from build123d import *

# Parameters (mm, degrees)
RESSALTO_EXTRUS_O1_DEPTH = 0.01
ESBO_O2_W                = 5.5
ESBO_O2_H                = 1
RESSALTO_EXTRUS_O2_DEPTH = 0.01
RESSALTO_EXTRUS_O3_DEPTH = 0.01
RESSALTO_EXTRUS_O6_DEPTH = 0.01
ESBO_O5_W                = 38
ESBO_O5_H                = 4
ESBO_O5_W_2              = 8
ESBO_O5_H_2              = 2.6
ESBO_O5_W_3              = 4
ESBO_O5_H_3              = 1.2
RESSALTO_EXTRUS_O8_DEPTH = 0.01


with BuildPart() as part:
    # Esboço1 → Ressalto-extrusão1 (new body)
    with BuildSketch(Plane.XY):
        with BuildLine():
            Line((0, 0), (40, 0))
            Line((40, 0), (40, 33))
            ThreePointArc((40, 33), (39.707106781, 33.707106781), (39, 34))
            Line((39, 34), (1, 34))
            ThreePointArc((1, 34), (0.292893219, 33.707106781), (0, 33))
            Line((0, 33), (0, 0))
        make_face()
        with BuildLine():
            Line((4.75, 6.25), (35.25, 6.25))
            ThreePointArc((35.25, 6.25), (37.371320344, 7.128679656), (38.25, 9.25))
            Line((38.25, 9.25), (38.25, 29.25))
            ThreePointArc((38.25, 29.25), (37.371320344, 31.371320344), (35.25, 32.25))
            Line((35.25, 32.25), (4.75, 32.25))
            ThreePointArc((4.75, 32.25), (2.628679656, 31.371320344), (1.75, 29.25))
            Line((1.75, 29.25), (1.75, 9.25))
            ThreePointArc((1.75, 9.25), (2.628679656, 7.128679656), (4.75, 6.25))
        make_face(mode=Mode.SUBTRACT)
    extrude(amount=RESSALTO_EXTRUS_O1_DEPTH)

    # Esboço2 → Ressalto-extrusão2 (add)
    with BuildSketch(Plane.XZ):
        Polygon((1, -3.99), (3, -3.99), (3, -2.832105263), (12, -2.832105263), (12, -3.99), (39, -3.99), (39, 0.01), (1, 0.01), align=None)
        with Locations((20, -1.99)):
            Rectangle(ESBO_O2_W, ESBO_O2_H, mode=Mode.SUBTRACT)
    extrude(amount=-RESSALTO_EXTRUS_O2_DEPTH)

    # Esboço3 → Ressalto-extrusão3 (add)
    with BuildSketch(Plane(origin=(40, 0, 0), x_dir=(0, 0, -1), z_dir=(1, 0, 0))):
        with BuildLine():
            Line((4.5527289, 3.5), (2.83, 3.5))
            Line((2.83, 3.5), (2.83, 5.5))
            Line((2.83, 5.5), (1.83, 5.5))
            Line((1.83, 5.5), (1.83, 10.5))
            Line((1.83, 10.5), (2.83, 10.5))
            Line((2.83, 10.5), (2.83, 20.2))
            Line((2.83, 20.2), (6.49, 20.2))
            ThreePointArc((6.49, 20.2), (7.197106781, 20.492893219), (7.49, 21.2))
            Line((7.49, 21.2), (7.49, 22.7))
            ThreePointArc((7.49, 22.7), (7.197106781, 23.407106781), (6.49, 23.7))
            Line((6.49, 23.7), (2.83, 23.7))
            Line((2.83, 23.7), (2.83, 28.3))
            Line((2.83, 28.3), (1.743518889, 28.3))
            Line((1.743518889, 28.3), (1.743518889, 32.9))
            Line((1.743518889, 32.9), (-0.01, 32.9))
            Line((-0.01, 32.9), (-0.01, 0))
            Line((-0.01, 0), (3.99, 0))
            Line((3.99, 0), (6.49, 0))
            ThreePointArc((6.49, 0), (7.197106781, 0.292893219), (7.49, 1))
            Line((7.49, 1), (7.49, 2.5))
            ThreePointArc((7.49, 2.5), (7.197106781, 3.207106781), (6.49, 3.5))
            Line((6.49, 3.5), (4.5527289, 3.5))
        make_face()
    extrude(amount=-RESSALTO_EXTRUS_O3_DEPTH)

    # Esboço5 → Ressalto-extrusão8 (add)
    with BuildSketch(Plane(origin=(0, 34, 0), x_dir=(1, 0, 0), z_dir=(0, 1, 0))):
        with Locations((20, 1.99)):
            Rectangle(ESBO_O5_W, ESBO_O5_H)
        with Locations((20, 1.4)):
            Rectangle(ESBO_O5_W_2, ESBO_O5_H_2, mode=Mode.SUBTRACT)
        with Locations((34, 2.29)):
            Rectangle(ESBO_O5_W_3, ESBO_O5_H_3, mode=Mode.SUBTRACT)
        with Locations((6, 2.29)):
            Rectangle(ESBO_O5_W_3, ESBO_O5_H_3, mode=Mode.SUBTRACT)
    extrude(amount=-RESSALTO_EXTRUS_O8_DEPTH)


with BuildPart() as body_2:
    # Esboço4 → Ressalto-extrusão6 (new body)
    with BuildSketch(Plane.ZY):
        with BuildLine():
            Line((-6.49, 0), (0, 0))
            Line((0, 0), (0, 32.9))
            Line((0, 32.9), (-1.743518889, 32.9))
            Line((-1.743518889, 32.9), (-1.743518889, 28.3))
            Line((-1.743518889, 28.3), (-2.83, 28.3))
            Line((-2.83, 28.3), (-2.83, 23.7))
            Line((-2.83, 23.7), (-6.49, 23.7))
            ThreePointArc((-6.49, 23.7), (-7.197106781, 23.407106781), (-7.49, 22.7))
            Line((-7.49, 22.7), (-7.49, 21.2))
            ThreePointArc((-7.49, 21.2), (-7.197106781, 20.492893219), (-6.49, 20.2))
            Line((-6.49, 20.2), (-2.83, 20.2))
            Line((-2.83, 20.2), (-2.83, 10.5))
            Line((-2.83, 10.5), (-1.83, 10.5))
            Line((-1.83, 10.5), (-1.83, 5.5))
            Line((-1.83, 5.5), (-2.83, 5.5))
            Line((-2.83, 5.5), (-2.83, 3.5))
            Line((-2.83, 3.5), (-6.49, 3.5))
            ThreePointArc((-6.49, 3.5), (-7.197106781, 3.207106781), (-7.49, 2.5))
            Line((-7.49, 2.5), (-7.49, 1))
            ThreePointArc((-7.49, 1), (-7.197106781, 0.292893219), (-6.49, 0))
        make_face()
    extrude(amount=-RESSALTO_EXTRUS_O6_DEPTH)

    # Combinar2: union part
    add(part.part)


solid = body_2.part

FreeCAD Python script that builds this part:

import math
import FreeCAD as App
import Part
import Sketcher

V = App.Vector
Q = App.Units.Quantity


def add_polygon(sketch, points):
    """Adds a closed chain of lines whose ends are joined by coincident constraints."""
    first, n = sketch.GeometryCount, len(points)
    for a, b in zip(points, points[1:] + points[:1]):
        sketch.addGeometry(Part.LineSegment(App.Vector(*a, 0), App.Vector(*b, 0)), False)
    for i in range(n):
        sketch.addConstraint(Sketcher.Constraint("Coincident", first + i, 2, first + (i + 1) % n, 1))

doc = App.newDocument("Part")
body = doc.addObject("PartDesign::Body", "Body")

sketch1 = body.newObject("Sketcher::SketchObject", "Sketch")
sketch1.AttachmentSupport = (doc.getObject("XY_Plane"), [""])
sketch1.MapMode = "FlatFace"
sketch1.addGeometry([
    Part.LineSegment(V(0, 0, 0), V(40, 0, 0)),
    Part.LineSegment(V(40, 0, 0), V(40, 33, 0)),
    Part.ArcOfCircle(Part.Circle(V(39, 33, 0), V(0, 0, 1), 1), math.radians(0), math.radians(90)),
    Part.LineSegment(V(39, 34, 0), V(1, 34, 0)),
    Part.ArcOfCircle(Part.Circle(V(1, 33, 0), V(0, 0, 1), 1), math.radians(90), math.radians(180)),
    Part.LineSegment(V(0, 33, 0), V(0, 0, 0)),
    Part.LineSegment(V(35.2, 6.2, 0), V(4.8, 6.2, 0)),
    Part.ArcOfCircle(Part.Circle(V(4.7, 9.2, 0), V(0, 0, 1), 3), math.radians(180), math.radians(270)),
    Part.LineSegment(V(1.8, 9.2, 0), V(1.8, 29.2, 0)),
    Part.ArcOfCircle(Part.Circle(V(4.7, 29.3, 0), V(0, 0, 1), 3), math.radians(90), math.radians(180)),
    Part.LineSegment(V(4.8, 32.2, 0), V(35.2, 32.2, 0)),
    Part.ArcOfCircle(Part.Circle(V(35.3, 29.3, 0), V(0, 0, 1), 3), math.radians(0), math.radians(90)),
    Part.LineSegment(V(38.2, 29.2, 0), V(38.2, 9.2, 0)),
    Part.ArcOfCircle(Part.Circle(V(35.3, 9.2, 0), V(0, 0, 1), 3), math.radians(-90), math.radians(0)),
], False)
sketch1.addConstraint([
    Sketcher.Constraint("Coincident", 0, 2, 1, 1),
    Sketcher.Constraint("Tangent", 1, 2, 2, 1),
    Sketcher.Constraint("Tangent", 2, 2, 3, 1),
    Sketcher.Constraint("Tangent", 3, 2, 4, 1),
    Sketcher.Constraint("Tangent", 4, 2, 5, 1),
    Sketcher.Constraint("Coincident", 5, 2, 0, 1),
    Sketcher.Constraint("Tangent", 6, 2, 7, 2),
    Sketcher.Constraint("Tangent", 7, 1, 8, 1),
    Sketcher.Constraint("Tangent", 8, 2, 9, 2),
    Sketcher.Constraint("Tangent", 9, 1, 10, 1),
    Sketcher.Constraint("Tangent", 10, 2, 11, 2),
    Sketcher.Constraint("Tangent", 11, 1, 12, 1),
    Sketcher.Constraint("Tangent", 12, 2, 13, 2),
    Sketcher.Constraint("Tangent", 13, 1, 6, 1),
    Sketcher.Constraint("Horizontal", 0),
    Sketcher.Constraint("Vertical", 1),
    Sketcher.Constraint("Horizontal", 3),
    Sketcher.Constraint("Vertical", 5),
    Sketcher.Constraint("Horizontal", 6),
    Sketcher.Constraint("Vertical", 8),
    Sketcher.Constraint("Horizontal", 10),
    Sketcher.Constraint("Vertical", 12),
    Sketcher.Constraint("Coincident", 5, 2, -1, 1),
    Sketcher.Constraint("Equal", 2, 4),
    Sketcher.Constraint("Equal", 7, 9),
    Sketcher.Constraint("Equal", 9, 11),
    Sketcher.Constraint("Equal", 11, 13),
    Sketcher.Constraint("Radius", 2, Q("1 mm")),
    Sketcher.Constraint("Radius", 7, Q("3 mm")),
    Sketcher.Constraint("DistanceX", 0, 1, 0, 2, Q("40 mm")),
    Sketcher.Constraint("DistanceY", 1, 1, 1, 2, Q("33 mm")),
    Sketcher.Constraint("DistanceY", 8, 1, 8, 2, Q("20 mm")),
    Sketcher.Constraint("DistanceX", 6, 2, 6, 1, Q("30.5 mm")),
    Sketcher.Constraint("DistanceX", -1, 1, 7, 3, Q("4.75 mm")),
    Sketcher.Constraint("DistanceY", -1, 1, 7, 3, Q("9.25 mm")),
])
pad1 = body.newObject("PartDesign::Pad", "Pad")
pad1.Profile = sketch1
pad1.Length = 0.01

sketch2 = body.newObject("Sketcher::SketchObject", "Sketch001")
sketch2.AttachmentSupport = (doc.getObject("XZ_Plane"), [""])
sketch2.MapMode = "FlatFace"
add_polygon(sketch2, [(1, -4), (3, -4), (3, -2.8), (12, -2.8), (12, -4), (39, -4), (39, 0), (1, 0)])
add_polygon(sketch2, [(22.8, -2.5), (17.2, -2.5), (17.2, -1.5), (22.8, -1.5)])
sketch2.addConstraint([
    Sketcher.Constraint("Horizontal", 0),
    Sketcher.Constraint("Vertical", 1),
    Sketcher.Constraint("Horizontal", 2),
    Sketcher.Constraint("Vertical", 3),
    Sketcher.Constraint("Horizontal", 4),
    Sketcher.Constraint("Vertical", 5),
    Sketcher.Constraint("Horizontal", 6),
    Sketcher.Constraint("Vertical", 7),
    Sketcher.Constraint("Horizontal", 8),
    Sketcher.Constraint("Vertical", 9),
    Sketcher.Constraint("Horizontal", 10),
    Sketcher.Constraint("Vertical", 11),
    Sketcher.Constraint("Horizontal", 0, 2, 3, 2),
    Sketcher.Constraint("DistanceX", 0, 1, 0, 2, Q("2 mm")),
    Sketcher.Constraint("DistanceX", 2, 1, 2, 2, Q("9 mm")),
    Sketcher.Constraint("DistanceX", 4, 1, 4, 2, Q("27 mm")),
    Sketcher.Constraint("DistanceY", 5, 1, 5, 2, Q("4 mm")),
    Sketcher.Constraint("DistanceY", 9, 1, 9, 2, Q("1 mm")),
    Sketcher.Constraint("DistanceX", 8, 2, 8, 1, Q("5.5 mm")),
    Sketcher.Constraint("DistanceX", -1, 1, 0, 2, Q("3 mm")),
    Sketcher.Constraint("DistanceY", 3, 2, 8, 2, Q("1.5 mm")),
    Sketcher.Constraint("DistanceY", 0, 2, -1, 1, Q("3.99 mm")),
    Sketcher.Constraint("DistanceX", -1, 1, 8, 2, Q("17.25 mm")),
    Sketcher.Constraint("DistanceY", 1, 1, 1, 2, Q("1.157895 mm")),
])
pad2 = body.newObject("PartDesign::Pad", "Pad001")
pad2.Profile = sketch2
pad2.Length = 0.01
pad2.Reversed = True

sketch3 = body.newObject("Sketcher::SketchObject", "Sketch002")
sketch3.AttachmentSupport = (doc.getObject("YZ_Plane"), [""])
sketch3.MapMode = "FlatFace"
sketch3.AttachmentOffset = App.Placement(V(0, 0, 40), App.Rotation())
sketch3.addGeometry([
    Part.LineSegment(V(3.5, -2.8, 0), V(5.5, -2.8, 0)),
    Part.LineSegment(V(5.5, -2.8, 0), V(5.5, -1.8, 0)),
    Part.LineSegment(V(5.5, -1.8, 0), V(10.5, -1.8, 0)),
    Part.LineSegment(V(10.5, -1.8, 0), V(10.5, -2.8, 0)),
    Part.LineSegment(V(10.5, -2.8, 0), V(20.2, -2.8, 0)),
    Part.LineSegment(V(20.2, -2.8, 0), V(20.2, -6.5, 0)),
    Part.ArcOfCircle(Part.Circle(V(21.2, -6.5, 0), V(0, 0, 1), 1), math.radians(-180), math.radians(-90)),
    Part.LineSegment(V(21.2, -7.5, 0), V(22.7, -7.5, 0)),
    Part.ArcOfCircle(Part.Circle(V(22.7, -6.5, 0), V(0, 0, 1), 1), math.radians(-90), math.radians(0)),
    Part.LineSegment(V(23.7, -6.5, 0), V(23.7, -2.8, 0)),
    Part.LineSegment(V(23.7, -2.8, 0), V(28.3, -2.8, 0)),
    Part.LineSegment(V(28.3, -2.8, 0), V(28.3, -1.7, 0)),
    Part.LineSegment(V(28.3, -1.7, 0), V(32.9, -1.7, 0)),
    Part.LineSegment(V(32.9, -1.7, 0), V(32.9, 0, 0)),
    Part.LineSegment(V(32.9, 0, 0), V(0, 0, 0)),
    Part.LineSegment(V(0, 0, 0), V(0, -6.5, 0)),
    Part.ArcOfCircle(Part.Circle(V(1, -6.5, 0), V(0, 0, 1), 1), math.radians(-180), math.radians(-90)),
    Part.LineSegment(V(1, -7.5, 0), V(2.5, -7.5, 0)),
    Part.ArcOfCircle(Part.Circle(V(2.5, -6.5, 0), V(0, 0, 1), 1), math.radians(-90), math.radians(0)),
    Part.LineSegment(V(3.5, -6.5, 0), V(3.5, -2.8, 0)),
], False)
sketch3.addConstraint([
    Sketcher.Constraint("Coincident", 0, 2, 1, 1),
    Sketcher.Constraint("Coincident", 1, 2, 2, 1),
    Sketcher.Constraint("Coincident", 2, 2, 3, 1),
    Sketcher.Constraint("Coincident", 3, 2, 4, 1),
    Sketcher.Constraint("Coincident", 4, 2, 5, 1),
    Sketcher.Constraint("Tangent", 5, 2, 6, 1),
    Sketcher.Constraint("Tangent", 6, 2, 7, 1),
    Sketcher.Constraint("Tangent", 7, 2, 8, 1),
    Sketcher.Constraint("Tangent", 8, 2, 9, 1),
    Sketcher.Constraint("Coincident", 9, 2, 10, 1),
    Sketcher.Constraint("Coincident", 10, 2, 11, 1),
    Sketcher.Constraint("Coincident", 11, 2, 12, 1),
    Sketcher.Constraint("Coincident", 12, 2, 13, 1),
    Sketcher.Constraint("Coincident", 13, 2, 14, 1),
    Sketcher.Constraint("Coincident", 14, 2, 15, 1),
    Sketcher.Constraint("Tangent", 15, 2, 16, 1),
    Sketcher.Constraint("Tangent", 16, 2, 17, 1),
    Sketcher.Constraint("Tangent", 17, 2, 18, 1),
    Sketcher.Constraint("Tangent", 18, 2, 19, 1),
    Sketcher.Constraint("Coincident", 19, 2, 0, 1),
    Sketcher.Constraint("Horizontal", 0),
    Sketcher.Constraint("Vertical", 1),
    Sketcher.Constraint("Horizontal", 2),
    Sketcher.Constraint("Vertical", 3),
    Sketcher.Constraint("Horizontal", 4),
    Sketcher.Constraint("Vertical", 5),
    Sketcher.Constraint("Horizontal", 7),
    Sketcher.Constraint("Vertical", 9),
    Sketcher.Constraint("Horizontal", 10),
    Sketcher.Constraint("Vertical", 11),
    Sketcher.Constraint("Horizontal", 12),
    Sketcher.Constraint("Vertical", 13),
    Sketcher.Constraint("Horizontal", 14),
    Sketcher.Constraint("Vertical", 15),
    Sketcher.Constraint("Horizontal", 17),
    Sketcher.Constraint("Vertical", 19),
    Sketcher.Constraint("Equal", 6, 8),
    Sketcher.Constraint("Equal", 8, 16),
    Sketcher.Constraint("Equal", 16, 18),
    Sketcher.Constraint("PointOnObject", 14, 2, -2),
    Sketcher.Constraint("Horizontal", 8, 3, 16, 3),
    Sketcher.Constraint("Horizontal", 0, 2, 3, 2),
    Sketcher.Constraint("Horizontal", 4, 2, 9, 2),
    Sketcher.Constraint("Equal", 10, 12),
    Sketcher.Constraint("Equal", 7, 17),
    Sketcher.Constraint("Radius", 6, Q("1 mm")),
    Sketcher.Constraint("DistanceX", 0, 1, 0, 2, Q("2 mm")),
    Sketcher.Constraint("DistanceX", 2, 1, 2, 2, Q("5 mm")),
    Sketcher.Constraint("DistanceY", 1, 1, 1, 2, Q("1 mm")),
    Sketcher.Constraint("DistanceX", 4, 1, 4, 2, Q("9.7 mm")),
    Sketcher.Constraint("DistanceX", 7, 1, 7, 2, Q("1.5 mm")),
    Sketcher.Constraint("DistanceX", 10, 1, 10, 2, Q("4.6 mm")),
    Sketcher.Constraint("DistanceY", 15, 2, 15, 1, Q("6.5 mm")),
    Sketcher.Constraint("DistanceY", 5, 2, 5, 1, Q("3.66 mm")),
    Sketcher.Constraint("DistanceY", 6, 3, -1, 1, Q("6.49 mm")),
    Sketcher.Constraint("DistanceY", 11, 1, 11, 2, Q("1.086481 mm")),
])
pad3 = body.newObject("PartDesign::Pad", "Pad002")
pad3.Profile = sketch3
pad3.Length = 0.01
pad3.Reversed = True

sketch4 = body.newObject("Sketcher::SketchObject", "Sketch003")
sketch4.AttachmentSupport = (doc.getObject("XZ_Plane"), [""])
sketch4.MapMode = "FlatFace"
sketch4.AttachmentOffset = App.Placement(V(0, 0, -34), App.Rotation())
add_polygon(sketch4, [(1, -4), (1, 0), (39, 0), (39, -4)])
add_polygon(sketch4, [(24, -0.1), (16, -0.1), (16, -2.7), (24, -2.7)])
add_polygon(sketch4, [(8, -1.7), (4, -1.7), (4, -2.9), (8, -2.9)])
add_polygon(sketch4, [(36, -1.7), (32, -1.7), (32, -2.9), (36, -2.9)])
sketch4.addConstraint([
    Sketcher.Constraint("Vertical", 0),
    Sketcher.Constraint("Horizontal", 1),
    Sketcher.Constraint("Vertical", 2),
    Sketcher.Constraint("Horizontal", 3),
    Sketcher.Constraint("Horizontal", 4),
    Sketcher.Constraint("Vertical", 5),
    Sketcher.Constraint("Horizontal", 6),
    Sketcher.Constraint("Vertical", 7),
    Sketcher.Constraint("Horizontal", 8),
    Sketcher.Constraint("Vertical", 9),
    Sketcher.Constraint("Horizontal", 10),
    Sketcher.Constraint("Vertical", 11),
    Sketcher.Constraint("Horizontal", 12),
    Sketcher.Constraint("Vertical", 13),
    Sketcher.Constraint("Horizontal", 14),
    Sketcher.Constraint("Vertical", 15),
    Sketcher.Constraint("Horizontal", 11, 2, 12, 2),
    Sketcher.Constraint("Horizontal", 10, 2, 13, 2),
    Sketcher.Constraint("Equal", 10, 12),
    Sketcher.Constraint("Equal", 14, 0),
    Sketcher.Constraint("DistanceX", 1, 1, 1, 2, Q("38 mm")),
    Sketcher.Constraint("DistanceX", 4, 2, 4, 1, Q("8 mm")),
    Sketcher.Constraint("DistanceX", 8, 2, 8, 1, Q("4 mm")),
    Sketcher.Constraint("DistanceY", 5, 2, 5, 1, Q("2.6 mm")),
    Sketcher.Constraint("DistanceY", 9, 2, 9, 1, Q("1.2 mm")),
    Sketcher.Constraint("DistanceX", -1, 1, 0, 2, Q("1 mm")),
    Sketcher.Constraint("DistanceX", -1, 1, 4, 2, Q("16 mm")),
    Sketcher.Constraint("DistanceX", -1, 1, 8, 2, Q("4 mm")),
    Sketcher.Constraint("DistanceX", -1, 1, 12, 2, Q("32 mm")),
    Sketcher.Constraint("DistanceY", 4, 2, -1, 1, Q("0.1 mm")),
    Sketcher.Constraint("DistanceY", 8, 2, 0, 2, Q("1.7 mm")),
    Sketcher.Constraint("DistanceY", -1, 1, 0, 2, Q("0.01 mm")),
])
pad4 = body.newObject("PartDesign::Pad", "Pad003")
pad4.Profile = sketch4
pad4.Length = 0.01
body2 = doc.addObject("PartDesign::Body", "Body001")

sketch5 = body2.newObject("Sketcher::SketchObject", "Sketch004")
sketch5.AttachmentSupport = (doc.getObject("YZ_Plane001"), [""])
sketch5.MapMode = "FlatFace"
sketch5.addGeometry([
    Part.LineSegment(V(0, -6.5, 0), V(0, 0, 0)),
    Part.LineSegment(V(0, 0, 0), V(32.9, 0, 0)),
    Part.LineSegment(V(32.9, 0, 0), V(32.9, -1.7, 0)),
    Part.LineSegment(V(32.9, -1.7, 0), V(28.3, -1.7, 0)),
    Part.LineSegment(V(28.3, -1.7, 0), V(28.3, -2.8, 0)),
    Part.LineSegment(V(28.3, -2.8, 0), V(23.7, -2.8, 0)),
    Part.LineSegment(V(23.7, -2.8, 0), V(23.7, -6.5, 0)),
    Part.ArcOfCircle(Part.Circle(V(22.7, -6.5, 0), V(0, 0, 1), 1), math.radians(-90), math.radians(0)),
    Part.LineSegment(V(22.7, -7.5, 0), V(21.2, -7.5, 0)),
    Part.ArcOfCircle(Part.Circle(V(21.2, -6.5, 0), V(0, 0, 1), 1), math.radians(-180), math.radians(-90)),
    Part.LineSegment(V(20.2, -6.5, 0), V(20.2, -2.8, 0)),
    Part.LineSegment(V(20.2, -2.8, 0), V(10.5, -2.8, 0)),
    Part.LineSegment(V(10.5, -2.8, 0), V(10.5, -1.8, 0)),
    Part.LineSegment(V(10.5, -1.8, 0), V(5.5, -1.8, 0)),
    Part.LineSegment(V(5.5, -1.8, 0), V(5.5, -2.8, 0)),
    Part.LineSegment(V(5.5, -2.8, 0), V(3.5, -2.8, 0)),
    Part.LineSegment(V(3.5, -2.8, 0), V(3.5, -6.5, 0)),
    Part.ArcOfCircle(Part.Circle(V(2.5, -6.5, 0), V(0, 0, 1), 1), math.radians(-90), math.radians(0)),
    Part.LineSegment(V(2.5, -7.5, 0), V(1, -7.5, 0)),
    Part.ArcOfCircle(Part.Circle(V(1, -6.5, 0), V(0, 0, 1), 1), math.radians(-180), math.radians(-90)),
], False)
sketch5.addConstraint([
    Sketcher.Constraint("Coincident", 0, 2, 1, 1),
    Sketcher.Constraint("Coincident", 1, 2, 2, 1),
    Sketcher.Constraint("Coincident", 2, 2, 3, 1),
    Sketcher.Constraint("Coincident", 3, 2, 4, 1),
    Sketcher.Constraint("Coincident", 4, 2, 5, 1),
    Sketcher.Constraint("Coincident", 5, 2, 6, 1),
    Sketcher.Constraint("Tangent", 6, 2, 7, 2),
    Sketcher.Constraint("Tangent", 7, 1, 8, 1),
    Sketcher.Constraint("Tangent", 8, 2, 9, 2),
    Sketcher.Constraint("Tangent", 9, 1, 10, 1),
    Sketcher.Constraint("Coincident", 10, 2, 11, 1),
    Sketcher.Constraint("Coincident", 11, 2, 12, 1),
    Sketcher.Constraint("Coincident", 12, 2, 13, 1),
    Sketcher.Constraint("Coincident", 13, 2, 14, 1),
    Sketcher.Constraint("Coincident", 14, 2, 15, 1),
    Sketcher.Constraint("Coincident", 15, 2, 16, 1),
    Sketcher.Constraint("Tangent", 16, 2, 17, 2),
    Sketcher.Constraint("Tangent", 17, 1, 18, 1),
    Sketcher.Constraint("Tangent", 18, 2, 19, 2),
    Sketcher.Constraint("Tangent", 19, 1, 0, 1),
    Sketcher.Constraint("Vertical", 0),
    Sketcher.Constraint("Horizontal", 1),
    Sketcher.Constraint("Vertical", 2),
    Sketcher.Constraint("Horizontal", 3),
    Sketcher.Constraint("Vertical", 4),
    Sketcher.Constraint("Horizontal", 5),
    Sketcher.Constraint("Vertical", 6),
    Sketcher.Constraint("Horizontal", 8),
    Sketcher.Constraint("Vertical", 10),
    Sketcher.Constraint("Horizontal", 11),
    Sketcher.Constraint("Vertical", 12),
    Sketcher.Constraint("Horizontal", 13),
    Sketcher.Constraint("Vertical", 14),
    Sketcher.Constraint("Horizontal", 15),
    Sketcher.Constraint("Vertical", 16),
    Sketcher.Constraint("Horizontal", 18),
    Sketcher.Constraint("Coincident", 0, 2, -1, 1),
    Sketcher.Constraint("Equal", 7, 9),
    Sketcher.Constraint("Equal", 9, 17),
    Sketcher.Constraint("Equal", 17, 19),
    Sketcher.Constraint("Horizontal", 9, 3, 17, 3),
    Sketcher.Constraint("Horizontal", 5, 2, 10, 2),
    Sketcher.Constraint("Horizontal", 11, 2, 14, 2),
    Sketcher.Constraint("Equal", 3, 5),
    Sketcher.Constraint("Equal", 8, 18),
    Sketcher.Constraint("Radius", 7, Q("1 mm")),
    Sketcher.Constraint("DistanceX", 13, 2, 13, 1, Q("5 mm")),
    Sketcher.Constraint("DistanceX", 15, 2, 15, 1, Q("2 mm")),
    Sketcher.Constraint("DistanceY", 12, 1, 12, 2, Q("1 mm")),
    Sketcher.Constraint("DistanceX", 1, 1, 1, 2, Q("32.9 mm")),
    Sketcher.Constraint("DistanceX", 3, 2, 3, 1, Q("4.6 mm")),
    Sketcher.Constraint("DistanceX", 8, 2, 8, 1, Q("1.5 mm")),
    Sketcher.Constraint("DistanceY", 0, 1, 0, 2, Q("6.49 mm")),
    Sketcher.Constraint("DistanceY", 6, 2, 6, 1, Q("3.66 mm")),
    Sketcher.Constraint("DistanceY", 2, 2, 2, 1, Q("1.743519 mm")),
])
pad5 = body2.newObject("PartDesign::Pad", "Pad004")
pad5.Profile = sketch5
pad5.Length = 0.01
doc.recompute()

boolean = body2.newObject("PartDesign::Boolean", "Boolean")
boolean.Type = "Fuse"
boolean.addObjects([body])

doc.recompute()
